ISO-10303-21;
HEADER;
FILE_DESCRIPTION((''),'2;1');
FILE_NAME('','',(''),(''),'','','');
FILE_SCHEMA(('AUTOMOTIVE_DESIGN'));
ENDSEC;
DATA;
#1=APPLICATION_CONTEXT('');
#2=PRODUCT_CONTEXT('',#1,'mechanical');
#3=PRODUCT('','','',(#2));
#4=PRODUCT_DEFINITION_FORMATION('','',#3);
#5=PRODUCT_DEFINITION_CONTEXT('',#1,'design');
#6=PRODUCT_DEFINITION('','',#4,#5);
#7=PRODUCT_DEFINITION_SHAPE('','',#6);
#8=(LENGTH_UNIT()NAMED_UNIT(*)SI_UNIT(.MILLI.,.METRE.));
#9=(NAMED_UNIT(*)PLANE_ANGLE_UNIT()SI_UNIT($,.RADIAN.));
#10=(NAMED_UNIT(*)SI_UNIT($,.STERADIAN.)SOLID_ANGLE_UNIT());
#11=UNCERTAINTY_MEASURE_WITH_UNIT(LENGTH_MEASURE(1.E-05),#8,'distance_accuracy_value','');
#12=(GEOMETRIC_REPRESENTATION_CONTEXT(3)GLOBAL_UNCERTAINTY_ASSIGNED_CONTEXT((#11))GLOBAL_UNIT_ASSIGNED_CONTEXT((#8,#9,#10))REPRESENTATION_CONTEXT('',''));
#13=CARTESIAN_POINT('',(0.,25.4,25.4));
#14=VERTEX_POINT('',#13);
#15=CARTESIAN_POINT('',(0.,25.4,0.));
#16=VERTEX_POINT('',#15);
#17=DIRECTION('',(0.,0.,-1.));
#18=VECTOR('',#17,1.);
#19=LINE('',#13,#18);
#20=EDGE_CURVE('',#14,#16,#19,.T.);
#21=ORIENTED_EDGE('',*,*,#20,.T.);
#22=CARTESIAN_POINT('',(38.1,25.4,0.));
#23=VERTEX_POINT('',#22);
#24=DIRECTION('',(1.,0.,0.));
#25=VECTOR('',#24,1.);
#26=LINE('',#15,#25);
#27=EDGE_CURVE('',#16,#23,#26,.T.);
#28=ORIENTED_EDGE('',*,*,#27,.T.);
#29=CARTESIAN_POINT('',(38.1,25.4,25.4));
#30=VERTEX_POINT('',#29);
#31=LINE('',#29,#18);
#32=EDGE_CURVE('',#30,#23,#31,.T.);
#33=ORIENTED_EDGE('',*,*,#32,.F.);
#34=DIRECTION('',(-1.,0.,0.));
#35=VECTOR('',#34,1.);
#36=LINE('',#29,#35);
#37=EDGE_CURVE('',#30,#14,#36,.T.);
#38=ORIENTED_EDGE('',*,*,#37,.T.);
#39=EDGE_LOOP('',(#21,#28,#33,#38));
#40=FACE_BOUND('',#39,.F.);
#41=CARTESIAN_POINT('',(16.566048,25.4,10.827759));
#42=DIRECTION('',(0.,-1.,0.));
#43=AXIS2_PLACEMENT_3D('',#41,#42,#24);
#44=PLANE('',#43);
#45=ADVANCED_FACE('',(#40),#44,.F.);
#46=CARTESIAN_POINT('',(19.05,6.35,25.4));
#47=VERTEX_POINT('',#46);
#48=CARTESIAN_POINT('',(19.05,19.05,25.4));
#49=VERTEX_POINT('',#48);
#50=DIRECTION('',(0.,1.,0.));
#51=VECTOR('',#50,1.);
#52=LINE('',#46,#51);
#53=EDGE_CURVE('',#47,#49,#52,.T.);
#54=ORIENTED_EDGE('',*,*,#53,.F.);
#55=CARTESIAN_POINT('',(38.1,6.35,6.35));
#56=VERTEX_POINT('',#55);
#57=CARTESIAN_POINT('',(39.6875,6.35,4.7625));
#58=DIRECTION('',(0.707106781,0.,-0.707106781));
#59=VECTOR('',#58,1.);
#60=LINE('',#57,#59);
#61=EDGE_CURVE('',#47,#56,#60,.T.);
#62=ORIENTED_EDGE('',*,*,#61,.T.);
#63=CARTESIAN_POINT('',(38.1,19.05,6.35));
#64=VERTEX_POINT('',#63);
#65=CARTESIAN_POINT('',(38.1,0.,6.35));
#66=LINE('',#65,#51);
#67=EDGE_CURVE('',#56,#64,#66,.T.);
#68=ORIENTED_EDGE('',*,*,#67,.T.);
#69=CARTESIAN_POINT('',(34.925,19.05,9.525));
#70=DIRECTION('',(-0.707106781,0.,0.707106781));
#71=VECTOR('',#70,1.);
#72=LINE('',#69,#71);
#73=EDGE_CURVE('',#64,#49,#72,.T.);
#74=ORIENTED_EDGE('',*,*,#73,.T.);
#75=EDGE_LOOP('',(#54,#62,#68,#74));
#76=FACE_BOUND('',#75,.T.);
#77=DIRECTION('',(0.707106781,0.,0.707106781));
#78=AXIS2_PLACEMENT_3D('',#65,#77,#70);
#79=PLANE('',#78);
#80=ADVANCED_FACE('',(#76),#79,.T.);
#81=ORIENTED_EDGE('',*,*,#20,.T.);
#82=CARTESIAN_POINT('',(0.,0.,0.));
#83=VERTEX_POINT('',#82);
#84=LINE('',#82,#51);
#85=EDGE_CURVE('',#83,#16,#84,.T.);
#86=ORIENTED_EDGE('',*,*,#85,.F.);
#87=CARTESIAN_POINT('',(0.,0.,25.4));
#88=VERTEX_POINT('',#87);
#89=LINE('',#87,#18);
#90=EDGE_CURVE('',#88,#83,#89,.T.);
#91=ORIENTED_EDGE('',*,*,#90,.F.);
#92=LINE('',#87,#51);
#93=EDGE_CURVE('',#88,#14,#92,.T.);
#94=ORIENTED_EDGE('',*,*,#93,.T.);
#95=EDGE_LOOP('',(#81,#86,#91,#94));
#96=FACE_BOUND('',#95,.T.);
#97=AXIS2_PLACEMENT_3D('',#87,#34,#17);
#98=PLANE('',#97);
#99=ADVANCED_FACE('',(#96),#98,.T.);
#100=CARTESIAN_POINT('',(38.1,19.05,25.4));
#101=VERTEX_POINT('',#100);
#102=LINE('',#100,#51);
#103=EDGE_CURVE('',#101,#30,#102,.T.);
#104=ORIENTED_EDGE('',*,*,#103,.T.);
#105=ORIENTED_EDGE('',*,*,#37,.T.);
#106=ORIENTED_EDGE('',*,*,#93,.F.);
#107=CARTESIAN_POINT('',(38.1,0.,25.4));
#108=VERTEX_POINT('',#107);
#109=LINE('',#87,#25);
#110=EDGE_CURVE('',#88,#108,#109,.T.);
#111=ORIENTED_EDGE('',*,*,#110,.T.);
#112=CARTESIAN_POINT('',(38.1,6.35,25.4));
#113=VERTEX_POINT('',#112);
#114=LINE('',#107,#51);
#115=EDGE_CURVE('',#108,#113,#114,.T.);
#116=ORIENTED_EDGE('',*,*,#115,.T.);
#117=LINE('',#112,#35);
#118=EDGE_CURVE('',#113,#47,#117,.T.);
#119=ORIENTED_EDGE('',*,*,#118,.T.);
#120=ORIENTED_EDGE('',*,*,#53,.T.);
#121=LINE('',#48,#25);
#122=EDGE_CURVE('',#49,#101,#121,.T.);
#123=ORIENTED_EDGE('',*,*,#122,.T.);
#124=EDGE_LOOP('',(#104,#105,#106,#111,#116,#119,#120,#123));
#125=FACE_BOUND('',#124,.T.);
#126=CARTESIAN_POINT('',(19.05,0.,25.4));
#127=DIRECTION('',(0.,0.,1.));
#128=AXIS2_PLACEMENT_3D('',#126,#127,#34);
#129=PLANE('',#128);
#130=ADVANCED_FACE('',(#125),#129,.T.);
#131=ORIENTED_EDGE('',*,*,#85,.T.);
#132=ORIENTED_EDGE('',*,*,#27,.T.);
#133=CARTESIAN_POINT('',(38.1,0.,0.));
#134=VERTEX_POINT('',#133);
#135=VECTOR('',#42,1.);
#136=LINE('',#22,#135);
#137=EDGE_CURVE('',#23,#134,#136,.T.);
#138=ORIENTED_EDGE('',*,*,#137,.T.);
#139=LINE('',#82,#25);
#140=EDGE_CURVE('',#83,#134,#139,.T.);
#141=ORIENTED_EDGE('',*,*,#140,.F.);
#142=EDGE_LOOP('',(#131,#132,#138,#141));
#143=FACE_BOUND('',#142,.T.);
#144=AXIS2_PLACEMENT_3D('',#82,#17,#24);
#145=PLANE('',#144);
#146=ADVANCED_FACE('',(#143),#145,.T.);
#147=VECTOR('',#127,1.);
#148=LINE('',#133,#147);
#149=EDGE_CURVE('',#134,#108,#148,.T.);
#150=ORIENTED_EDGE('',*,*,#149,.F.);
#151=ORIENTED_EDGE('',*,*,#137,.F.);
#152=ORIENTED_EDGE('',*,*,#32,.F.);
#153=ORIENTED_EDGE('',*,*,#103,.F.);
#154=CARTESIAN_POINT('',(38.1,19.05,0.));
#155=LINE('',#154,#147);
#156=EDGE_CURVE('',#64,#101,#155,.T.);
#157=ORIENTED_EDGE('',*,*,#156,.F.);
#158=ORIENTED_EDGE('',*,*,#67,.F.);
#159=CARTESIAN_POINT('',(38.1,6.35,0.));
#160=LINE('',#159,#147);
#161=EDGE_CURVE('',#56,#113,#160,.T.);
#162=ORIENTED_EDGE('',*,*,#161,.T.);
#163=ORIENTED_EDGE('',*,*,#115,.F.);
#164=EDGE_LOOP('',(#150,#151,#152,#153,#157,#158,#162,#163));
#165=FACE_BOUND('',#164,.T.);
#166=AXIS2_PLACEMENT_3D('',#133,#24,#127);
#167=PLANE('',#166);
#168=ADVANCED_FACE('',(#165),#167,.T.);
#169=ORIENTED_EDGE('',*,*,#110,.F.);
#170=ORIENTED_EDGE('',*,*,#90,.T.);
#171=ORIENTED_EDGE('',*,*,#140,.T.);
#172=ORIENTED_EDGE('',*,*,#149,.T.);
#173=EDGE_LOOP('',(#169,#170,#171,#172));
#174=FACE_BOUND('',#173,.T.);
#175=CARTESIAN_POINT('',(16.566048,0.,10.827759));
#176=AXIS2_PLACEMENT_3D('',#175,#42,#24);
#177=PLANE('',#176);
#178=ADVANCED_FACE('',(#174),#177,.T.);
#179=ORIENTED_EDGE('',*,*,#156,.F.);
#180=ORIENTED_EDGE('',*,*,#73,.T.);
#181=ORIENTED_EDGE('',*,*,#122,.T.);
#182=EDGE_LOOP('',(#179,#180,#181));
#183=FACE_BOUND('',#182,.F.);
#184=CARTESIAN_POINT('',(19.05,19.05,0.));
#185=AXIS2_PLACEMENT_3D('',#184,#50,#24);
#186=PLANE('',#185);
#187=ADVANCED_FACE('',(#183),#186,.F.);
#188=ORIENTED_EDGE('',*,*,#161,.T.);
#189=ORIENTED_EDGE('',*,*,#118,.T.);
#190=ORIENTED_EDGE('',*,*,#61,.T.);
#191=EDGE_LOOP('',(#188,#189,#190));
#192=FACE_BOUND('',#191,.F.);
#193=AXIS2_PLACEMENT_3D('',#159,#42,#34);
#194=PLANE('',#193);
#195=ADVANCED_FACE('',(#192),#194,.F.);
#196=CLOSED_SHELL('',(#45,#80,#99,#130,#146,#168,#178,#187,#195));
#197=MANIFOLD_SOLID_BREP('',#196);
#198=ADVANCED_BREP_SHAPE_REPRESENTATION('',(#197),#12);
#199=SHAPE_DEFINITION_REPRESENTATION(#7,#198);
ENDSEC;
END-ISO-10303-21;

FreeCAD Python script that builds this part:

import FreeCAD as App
import Part
import Sketcher
Q = App.Units.Quantity

doc = App.newDocument("Part")
body = doc.addObject("PartDesign::Body", "Body")

sketch1 = doc.addObject("Sketcher::SketchObject", "Sketch")
body.addObject(sketch1)
sketch1.AttachmentSupport = (doc.XZ_Plane, [""])
sketch1.MapMode = "FlatFace"
sketch1.addGeometry(Part.LineSegment(App.Vector(0, 25, 0), App.Vector(0, 0, 0)), False)
sketch1.addGeometry(Part.LineSegment(App.Vector(0, 0, 0), App.Vector(38, 0, 0)), False)
sketch1.addGeometry(Part.LineSegment(App.Vector(38, 0, 0), App.Vector(38, 6, 0)), False)
sketch1.addGeometry(Part.LineSegment(App.Vector(38, 6, 0), App.Vector(19, 25, 0)), False)
sketch1.addGeometry(Part.LineSegment(App.Vector(19, 25, 0), App.Vector(0, 25, 0)), False)
sketch1.addConstraint(Sketcher.Constraint("Coincident", 0, 2, 1, 1))
sketch1.addConstraint(Sketcher.Constraint("Coincident", 1, 2, 2, 1))
sketch1.addConstraint(Sketcher.Constraint("Coincident", 2, 2, 3, 1))
sketch1.addConstraint(Sketcher.Constraint("Coincident", 3, 2, 4, 1))
sketch1.addConstraint(Sketcher.Constraint("Coincident", 4, 2, 0, 1))
sketch1.addConstraint(Sketcher.Constraint("Vertical", 0))
sketch1.addConstraint(Sketcher.Constraint("Horizontal", 1))
sketch1.addConstraint(Sketcher.Constraint("Vertical", 2))
sketch1.addConstraint(Sketcher.Constraint("Horizontal", 4))
sketch1.addConstraint(Sketcher.Constraint("Coincident", 0, 2, -1, 1))
sketch1.addConstraint(Sketcher.Constraint("DistanceY", 0, 2, 0, 1, Q("1 in")))
sketch1.addConstraint(Sketcher.Constraint("DistanceX", 1, 1, 1, 2, Q("1.5 in")))
sketch1.addConstraint(Sketcher.Constraint("Angle", 3, Q("135 deg")))
sketch1.addConstraint(Sketcher.Constraint("DistanceX", 4, 2, 4, 1, Q("0.75 in")))
pad1 = doc.addObject("PartDesign::Pad", "Pad")
body.addObject(pad1)
pad1.Profile = sketch1
pad1.Length = Q("1 in")
pad1.Reversed = True

sketch2 = doc.addObject("Sketcher::SketchObject", "Sketch001")
body.addObject(sketch2)
sketch2.AttachmentSupport = (doc.XY_Plane, [""])
sketch2.MapMode = "FlatFace"
sketch2.addGeometry(Part.LineSegment(App.Vector(0, 25, 0), App.Vector(0, 0, 0)), False)
sketch2.addGeometry(Part.LineSegment(App.Vector(0, 0, 0), App.Vector(38, 0, 0)), False)
sketch2.addGeometry(Part.LineSegment(App.Vector(38, 0, 0), App.Vector(38, 6, 0)), False)
sketch2.addGeometry(Part.LineSegment(App.Vector(38, 6, 0), App.Vector(19, 6, 0)), False)
sketch2.addGeometry(Part.LineSegment(App.Vector(19, 6, 0), App.Vector(19, 19, 0)), False)
sketch2.addGeometry(Part.LineSegment(App.Vector(19, 19, 0), App.Vector(38, 19, 0)), False)
sketch2.addGeometry(Part.LineSegment(App.Vector(38, 19, 0), App.Vector(38, 25, 0)), False)
sketch2.addGeometry(Part.LineSegment(App.Vector(38, 25, 0), App.Vector(0, 25, 0)), False)
sketch2.addConstraint(Sketcher.Constraint("Coincident", 0, 2, 1, 1))
sketch2.addConstraint(Sketcher.Constraint("Coincident", 1, 2, 2, 1))
sketch2.addConstraint(Sketcher.Constraint("Coincident", 2, 2, 3, 1))
sketch2.addConstraint(Sketcher.Constraint("Coincident", 3, 2, 4, 1))
sketch2.addConstraint(Sketcher.Constraint("Coincident", 4, 2, 5, 1))
sketch2.addConstraint(Sketcher.Constraint("Coincident", 5, 2, 6, 1))
sketch2.addConstraint(Sketcher.Constraint("Coincident", 6, 2, 7, 1))
sketch2.addConstraint(Sketcher.Constraint("Coincident", 7, 2, 0, 1))
sketch2.addConstraint(Sketcher.Constraint("Vertical", 0))
sketch2.addConstraint(Sketcher.Constraint("Horizontal", 1))
sketch2.addConstraint(Sketcher.Constraint("Vertical", 2))
sketch2.addConstraint(Sketcher.Constraint("Horizontal", 3))
sketch2.addConstraint(Sketcher.Constraint("Vertical", 4))
sketch2.addConstraint(Sketcher.Constraint("Horizontal", 5))
sketch2.addConstraint(Sketcher.Constraint("Vertical", 6))
sketch2.addConstraint(Sketcher.Constraint("Horizontal", 7))
sketch2.addConstraint(Sketcher.Constraint("Coincident", 0, 2, -1, 1))
sketch2.addConstraint(Sketcher.Constraint("Vertical", 2, 2, 5, 2))
sketch2.addConstraint(Sketcher.Constraint("Equal", 2, 6))
sketch2.addConstraint(Sketcher.Constraint("DistanceY", 0, 2, 0, 1, Q("1 in")))
sketch2.addConstraint(Sketcher.Constraint("DistanceX", 1, 1, 1, 2, Q("1.5 in")))
sketch2.addConstraint(Sketcher.Constraint("DistanceY", 4, 1, 4, 2, Q("0.5 in")))
sketch2.addConstraint(Sketcher.Constraint("DistanceX", 3, 2, 3, 1, Q("0.75 in")))
pad2 = doc.addObject("PartDesign::Pad", "Pad001")
body.addObject(pad2)
pad2.Profile = sketch2
pad2.Length = Q("1 in")

doc.recompute()
